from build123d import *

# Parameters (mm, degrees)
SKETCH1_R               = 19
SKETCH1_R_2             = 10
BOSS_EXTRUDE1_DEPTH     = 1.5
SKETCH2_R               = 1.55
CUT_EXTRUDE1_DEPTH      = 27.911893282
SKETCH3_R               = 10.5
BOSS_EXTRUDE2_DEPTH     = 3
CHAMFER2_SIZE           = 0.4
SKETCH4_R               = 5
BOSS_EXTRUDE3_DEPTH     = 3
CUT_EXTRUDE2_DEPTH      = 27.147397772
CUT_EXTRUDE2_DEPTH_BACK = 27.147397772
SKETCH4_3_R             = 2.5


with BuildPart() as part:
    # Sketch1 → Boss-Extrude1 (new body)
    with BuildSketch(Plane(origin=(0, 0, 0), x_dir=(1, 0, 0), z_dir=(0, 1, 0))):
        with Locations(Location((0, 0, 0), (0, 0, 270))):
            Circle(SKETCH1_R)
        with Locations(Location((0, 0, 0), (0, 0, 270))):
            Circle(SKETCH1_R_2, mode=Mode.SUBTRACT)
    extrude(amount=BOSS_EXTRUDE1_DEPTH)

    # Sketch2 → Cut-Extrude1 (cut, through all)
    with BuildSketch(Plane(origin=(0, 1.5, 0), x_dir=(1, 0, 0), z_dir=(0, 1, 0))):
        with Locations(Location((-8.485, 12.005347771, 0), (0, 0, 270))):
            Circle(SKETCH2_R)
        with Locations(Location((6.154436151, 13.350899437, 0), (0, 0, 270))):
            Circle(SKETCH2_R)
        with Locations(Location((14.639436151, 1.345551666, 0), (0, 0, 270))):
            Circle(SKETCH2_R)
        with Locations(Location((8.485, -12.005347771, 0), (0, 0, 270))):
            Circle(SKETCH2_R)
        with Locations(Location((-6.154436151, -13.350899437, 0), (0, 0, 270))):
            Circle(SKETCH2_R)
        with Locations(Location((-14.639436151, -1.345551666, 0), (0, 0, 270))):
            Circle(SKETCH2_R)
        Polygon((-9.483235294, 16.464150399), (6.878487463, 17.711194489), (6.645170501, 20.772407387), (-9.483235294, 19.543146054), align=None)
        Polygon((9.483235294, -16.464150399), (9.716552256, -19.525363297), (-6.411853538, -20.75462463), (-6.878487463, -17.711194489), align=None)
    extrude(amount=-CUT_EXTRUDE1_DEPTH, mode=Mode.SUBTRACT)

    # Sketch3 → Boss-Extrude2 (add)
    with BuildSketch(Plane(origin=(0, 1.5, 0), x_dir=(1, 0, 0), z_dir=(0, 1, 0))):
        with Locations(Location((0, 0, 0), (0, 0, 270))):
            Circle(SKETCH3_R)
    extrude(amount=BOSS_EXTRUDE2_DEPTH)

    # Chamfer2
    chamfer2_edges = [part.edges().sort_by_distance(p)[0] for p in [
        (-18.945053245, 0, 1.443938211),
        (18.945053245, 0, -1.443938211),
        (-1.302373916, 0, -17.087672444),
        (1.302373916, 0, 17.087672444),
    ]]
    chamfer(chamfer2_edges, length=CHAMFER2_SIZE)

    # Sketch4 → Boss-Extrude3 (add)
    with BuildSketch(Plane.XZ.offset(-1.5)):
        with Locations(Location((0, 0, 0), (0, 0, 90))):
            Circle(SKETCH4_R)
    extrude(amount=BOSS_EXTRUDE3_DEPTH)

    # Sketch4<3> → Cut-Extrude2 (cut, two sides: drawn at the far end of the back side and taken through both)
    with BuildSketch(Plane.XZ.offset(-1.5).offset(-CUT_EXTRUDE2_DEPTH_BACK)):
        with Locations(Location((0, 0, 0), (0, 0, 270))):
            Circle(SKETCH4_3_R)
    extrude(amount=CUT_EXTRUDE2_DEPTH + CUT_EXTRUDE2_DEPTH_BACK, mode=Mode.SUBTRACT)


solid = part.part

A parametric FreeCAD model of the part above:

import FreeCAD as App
import Part
import Sketcher
Q = App.Units.Quantity


def edges_at(feature, points):
    """Names of the edges that pass closest to the given points."""
    edges = feature.Shape.Edges
    near = lambda p: min(range(len(edges)), key=lambda i: edges[i].distToShape(Part.Vertex(*p))[0])
    return sorted({f"Edge{near(p) + 1}" for p in points})


def add_polygon(sketch, points):
    """Adds a closed chain of lines whose ends are joined by coincident constraints."""
    first, n = sketch.GeometryCount, len(points)
    for a, b in zip(points, points[1:] + points[:1]):
        sketch.addGeometry(Part.LineSegment(App.Vector(*a, 0), App.Vector(*b, 0)), False)
    for i in range(n):
        sketch.addConstraint(Sketcher.Constraint("Coincident", first + i, 2, first + (i + 1) % n, 1))

doc = App.newDocument("Part")
body = doc.addObject("PartDesign::Body", "Body")

# Sketch on XZ plane
sketch1 = doc.addObject("Sketcher::SketchObject", "Sketch")
body.addObject(sketch1)
sketch1.AttachmentSupport = (doc.XZ_Plane, [""])
sketch1.MapMode = "FlatFace"
sketch1.addGeometry([
    Part.Circle(App.Vector(0, 0, 0), App.Vector(0, 0, 1), 19),
    Part.Circle(App.Vector(0, 0, 0), App.Vector(0, 0, 1), 10),
], False)
sketch1.addConstraint([
    Sketcher.Constraint("Coincident", 0, 3, -1, 1),
    Sketcher.Constraint("Coincident", 1, 3, -1, 1),
    Sketcher.Constraint("Diameter", 0, Q("38 mm")),
    Sketcher.Constraint("Diameter", 1, Q("20 mm")),
])
pad1 = doc.addObject("PartDesign::Pad", "Pad")
body.addObject(pad1)
pad1.Profile = sketch1
pad1.Length = 1.5
pad1.Reversed = True

# Sketch on XZ plane
sketch2 = doc.addObject("Sketcher::SketchObject", "Sketch001")
body.addObject(sketch2)
sketch2.AttachmentSupport = (doc.XZ_Plane, [""])
sketch2.MapMode = "FlatFace"
sketch2.AttachmentOffset = App.Placement(App.Vector(0, 0, -1.5), App.Rotation())
sketch2.addGeometry(Part.Circle(App.Vector(-8.485, -12.005348, 0), App.Vector(0, 0, 1), 1.55), False)  # 0
sketch2.addGeometry(Part.Circle(App.Vector(6.154436, -13.350899, 0), App.Vector(0, 0, 1), 1.55), False)  # 1
sketch2.addGeometry(Part.Circle(App.Vector(14.639436, -1.345552, 0), App.Vector(0, 0, 1), 1.55), False)  # 2
sketch2.addGeometry(Part.Circle(App.Vector(8.485, 12.005348, 0), App.Vector(0, 0, 1), 1.55), False)  # 3
sketch2.addGeometry(Part.Circle(App.Vector(-6.154436, 13.350899, 0), App.Vector(0, 0, 1), 1.55), False)  # 4
sketch2.addGeometry(Part.Circle(App.Vector(-14.639436, 1.345552, 0), App.Vector(0, 0, 1), 1.55), False)  # 5
add_polygon(sketch2, [(-9.483235, -16.46415), (6.878487, -17.711194), (6.645171, -20.772407), (-9.483235, -19.543146)])  # lines 6-9
add_polygon(sketch2, [(9.716552, 19.525363), (9.483235, 16.46415), (-6.878487, 17.711194), (-6.411854, 20.754625)])  # lines 10-13
sketch2.addConstraint([
    Sketcher.Constraint("Vertical", 9),
    Sketcher.Constraint("Diameter", 0, Q("3.1 mm")),
    Sketcher.Constraint("Diameter", 1, Q("3.1 mm")),
    Sketcher.Constraint("Diameter", 2, Q("3.1 mm")),
    Sketcher.Constraint("Diameter", 3, Q("3.1 mm")),
    Sketcher.Constraint("Diameter", 4, Q("3.1 mm")),
    Sketcher.Constraint("Diameter", 5, Q("3.1 mm")),
    Sketcher.Constraint("DistanceX", 0, 3, 3, 3, Q("16.97 mm")),
    Sketcher.Constraint("DistanceX", 0, 3, -1, 1, Q("8.485 mm")),
    Sketcher.Constraint("DistanceX", 1, 3, 2, 3, Q("8.485 mm")),
    Sketcher.Constraint("DistanceX", 5, 3, 4, 3, Q("8.485 mm")),
    Sketcher.Constraint("DistanceY", 1, 3, -1, 1, Q("13.350899 mm")),
    Sketcher.Constraint("DistanceY", -1, 1, 4, 3, Q("13.350899 mm")),
    Sketcher.Constraint("DistanceY", 2, 3, 3, 3, Q("13.350899 mm")),
    Sketcher.Constraint("DistanceY", 0, 3, 5, 3, Q("13.350899 mm")),
    Sketcher.Constraint("DistanceY", 8, 2, 0, 3, Q("7.537798 mm")),
    Sketcher.Constraint("DistanceX", 5, 3, 8, 2, Q("5.156201 mm")),
    Sketcher.Constraint("DistanceX", 10, 2, 2, 3, Q("5.156201 mm")),
    Sketcher.Constraint("DistanceY", 5, 3, 10, 2, Q("15.118599 mm")),
    Sketcher.Constraint("Distance", 7, Q("3.070091 mm")),
    Sketcher.Constraint("Distance", 10, Q("3.070091 mm")),
    Sketcher.Constraint("DistanceY", 9, 1, 9, 2, Q("3.078996 mm")),
    Sketcher.Constraint("DistanceY", 2, 3, -1, 1, Q("1.345552 mm")),
    Sketcher.Constraint("DistanceY", -1, 1, 5, 3, Q("1.345552 mm")),
    Sketcher.Constraint("DistanceX", -1, 1, 7, 2, Q("6.645171 mm")),
    Sketcher.Constraint("DistanceX", 1, 3, 6, 2, Q("0.724051 mm")),
    Sketcher.Constraint("DistanceY", 7, 2, 0, 3, Q("8.76706 mm")),
    Sketcher.Constraint("DistanceY", 8, 2, 6, 2, Q("1.831952 mm")),
    Sketcher.Constraint("DistanceX", 8, 2, 1, 3, Q("15.637671 mm")),
    Sketcher.Constraint("DistanceX", 11, 2, 4, 3, Q("0.724051 mm")),
    Sketcher.Constraint("DistanceY", 11, 2, 12, 2, Q("3.04343 mm")),
    Sketcher.Constraint("DistanceX", 12, 2, 10, 2, Q("15.895089 mm")),
    Sketcher.Constraint("DistanceY", 13, 2, 12, 2, Q("1.229261 mm")),
    Sketcher.Constraint("DistanceX", 11, 2, 13, 2, Q("16.59504 mm")),
])
pocket1 = doc.addObject("PartDesign::Pocket", "Pocket")
body.addObject(pocket1)
pocket1.Profile = sketch2
pocket1.Type = "ThroughAll"
pocket1.Reversed = True

# Sketch on XZ plane
sketch3 = doc.addObject("Sketcher::SketchObject", "Sketch002")
body.addObject(sketch3)
sketch3.AttachmentSupport = (doc.XZ_Plane, [""])
sketch3.MapMode = "FlatFace"
sketch3.AttachmentOffset = App.Placement(App.Vector(0, 0, -1.5), App.Rotation())
sketch3.addGeometry(Part.Circle(App.Vector(0, 0, 0), App.Vector(0, 0, 1), 10), False)
sketch3.addConstraint([
    Sketcher.Constraint("Coincident", 0, 3, -1, 1),
    Sketcher.Constraint("Diameter", 0, Q("21 mm")),
])
pad2 = doc.addObject("PartDesign::Pad", "Pad001")
body.addObject(pad2)
pad2.Profile = sketch3
pad2.Length = 3
pad2.Reversed = True
doc.recompute()

chamfer = doc.addObject("PartDesign::Chamfer", "Chamfer")
body.addObject(chamfer)
chamfer.Base = (pad2, edges_at(pad2, [
    (-18.945, 0, 1.444),
    (18.945, 0, -1.444),
    (-1.302, 0, -17.088),
    (1.302, 0, 17.088),
]))
chamfer.Size = 0.4

# Sketch on XZ plane
sketch4 = doc.addObject("Sketcher::SketchObject", "Sketch003")
body.addObject(sketch4)
sketch4.AttachmentSupport = (doc.XZ_Plane, [""])
sketch4.MapMode = "FlatFace"
sketch4.AttachmentOffset = App.Placement(App.Vector(0, 0, -1.5), App.Rotation())
sketch4.addGeometry(Part.Circle(App.Vector(0, 0, 0), App.Vector(0, 0, 1), 5), False)
sketch4.addConstraint([
    Sketcher.Constraint("Coincident", 0, 3, -1, 1),
    Sketcher.Constraint("Diameter", 0, Q("10 mm")),
])
pad3 = doc.addObject("PartDesign::Pad", "Pad002")
body.addObject(pad3)
pad3.Profile = sketch4
pad3.Length = 3

# Sketch on XZ plane
sketch5 = doc.addObject("Sketcher::SketchObject", "Sketch004")
body.addObject(sketch5)
sketch5.AttachmentSupport = (doc.XZ_Plane, [""])
sketch5.MapMode = "FlatFace"
sketch5.AttachmentOffset = App.Placement(App.Vector(0, 0, -1.5), App.Rotation())
sketch5.addGeometry(Part.Circle(App.Vector(0, 0, 0), App.Vector(0, 0, 1), 2.5), False)
sketch5.addConstraint([
    Sketcher.Constraint("Coincident", 0, 3, -1, 1),
    Sketcher.Constraint("Diameter", 0, Q("5 mm")),
])
pocket2 = doc.addObject("PartDesign::Pocket", "Pocket001")
body.addObject(pocket2)
pocket2.Profile = sketch5
pocket2.Type = "ThroughAll"
pocket2.Midplane = True

doc.recompute()
